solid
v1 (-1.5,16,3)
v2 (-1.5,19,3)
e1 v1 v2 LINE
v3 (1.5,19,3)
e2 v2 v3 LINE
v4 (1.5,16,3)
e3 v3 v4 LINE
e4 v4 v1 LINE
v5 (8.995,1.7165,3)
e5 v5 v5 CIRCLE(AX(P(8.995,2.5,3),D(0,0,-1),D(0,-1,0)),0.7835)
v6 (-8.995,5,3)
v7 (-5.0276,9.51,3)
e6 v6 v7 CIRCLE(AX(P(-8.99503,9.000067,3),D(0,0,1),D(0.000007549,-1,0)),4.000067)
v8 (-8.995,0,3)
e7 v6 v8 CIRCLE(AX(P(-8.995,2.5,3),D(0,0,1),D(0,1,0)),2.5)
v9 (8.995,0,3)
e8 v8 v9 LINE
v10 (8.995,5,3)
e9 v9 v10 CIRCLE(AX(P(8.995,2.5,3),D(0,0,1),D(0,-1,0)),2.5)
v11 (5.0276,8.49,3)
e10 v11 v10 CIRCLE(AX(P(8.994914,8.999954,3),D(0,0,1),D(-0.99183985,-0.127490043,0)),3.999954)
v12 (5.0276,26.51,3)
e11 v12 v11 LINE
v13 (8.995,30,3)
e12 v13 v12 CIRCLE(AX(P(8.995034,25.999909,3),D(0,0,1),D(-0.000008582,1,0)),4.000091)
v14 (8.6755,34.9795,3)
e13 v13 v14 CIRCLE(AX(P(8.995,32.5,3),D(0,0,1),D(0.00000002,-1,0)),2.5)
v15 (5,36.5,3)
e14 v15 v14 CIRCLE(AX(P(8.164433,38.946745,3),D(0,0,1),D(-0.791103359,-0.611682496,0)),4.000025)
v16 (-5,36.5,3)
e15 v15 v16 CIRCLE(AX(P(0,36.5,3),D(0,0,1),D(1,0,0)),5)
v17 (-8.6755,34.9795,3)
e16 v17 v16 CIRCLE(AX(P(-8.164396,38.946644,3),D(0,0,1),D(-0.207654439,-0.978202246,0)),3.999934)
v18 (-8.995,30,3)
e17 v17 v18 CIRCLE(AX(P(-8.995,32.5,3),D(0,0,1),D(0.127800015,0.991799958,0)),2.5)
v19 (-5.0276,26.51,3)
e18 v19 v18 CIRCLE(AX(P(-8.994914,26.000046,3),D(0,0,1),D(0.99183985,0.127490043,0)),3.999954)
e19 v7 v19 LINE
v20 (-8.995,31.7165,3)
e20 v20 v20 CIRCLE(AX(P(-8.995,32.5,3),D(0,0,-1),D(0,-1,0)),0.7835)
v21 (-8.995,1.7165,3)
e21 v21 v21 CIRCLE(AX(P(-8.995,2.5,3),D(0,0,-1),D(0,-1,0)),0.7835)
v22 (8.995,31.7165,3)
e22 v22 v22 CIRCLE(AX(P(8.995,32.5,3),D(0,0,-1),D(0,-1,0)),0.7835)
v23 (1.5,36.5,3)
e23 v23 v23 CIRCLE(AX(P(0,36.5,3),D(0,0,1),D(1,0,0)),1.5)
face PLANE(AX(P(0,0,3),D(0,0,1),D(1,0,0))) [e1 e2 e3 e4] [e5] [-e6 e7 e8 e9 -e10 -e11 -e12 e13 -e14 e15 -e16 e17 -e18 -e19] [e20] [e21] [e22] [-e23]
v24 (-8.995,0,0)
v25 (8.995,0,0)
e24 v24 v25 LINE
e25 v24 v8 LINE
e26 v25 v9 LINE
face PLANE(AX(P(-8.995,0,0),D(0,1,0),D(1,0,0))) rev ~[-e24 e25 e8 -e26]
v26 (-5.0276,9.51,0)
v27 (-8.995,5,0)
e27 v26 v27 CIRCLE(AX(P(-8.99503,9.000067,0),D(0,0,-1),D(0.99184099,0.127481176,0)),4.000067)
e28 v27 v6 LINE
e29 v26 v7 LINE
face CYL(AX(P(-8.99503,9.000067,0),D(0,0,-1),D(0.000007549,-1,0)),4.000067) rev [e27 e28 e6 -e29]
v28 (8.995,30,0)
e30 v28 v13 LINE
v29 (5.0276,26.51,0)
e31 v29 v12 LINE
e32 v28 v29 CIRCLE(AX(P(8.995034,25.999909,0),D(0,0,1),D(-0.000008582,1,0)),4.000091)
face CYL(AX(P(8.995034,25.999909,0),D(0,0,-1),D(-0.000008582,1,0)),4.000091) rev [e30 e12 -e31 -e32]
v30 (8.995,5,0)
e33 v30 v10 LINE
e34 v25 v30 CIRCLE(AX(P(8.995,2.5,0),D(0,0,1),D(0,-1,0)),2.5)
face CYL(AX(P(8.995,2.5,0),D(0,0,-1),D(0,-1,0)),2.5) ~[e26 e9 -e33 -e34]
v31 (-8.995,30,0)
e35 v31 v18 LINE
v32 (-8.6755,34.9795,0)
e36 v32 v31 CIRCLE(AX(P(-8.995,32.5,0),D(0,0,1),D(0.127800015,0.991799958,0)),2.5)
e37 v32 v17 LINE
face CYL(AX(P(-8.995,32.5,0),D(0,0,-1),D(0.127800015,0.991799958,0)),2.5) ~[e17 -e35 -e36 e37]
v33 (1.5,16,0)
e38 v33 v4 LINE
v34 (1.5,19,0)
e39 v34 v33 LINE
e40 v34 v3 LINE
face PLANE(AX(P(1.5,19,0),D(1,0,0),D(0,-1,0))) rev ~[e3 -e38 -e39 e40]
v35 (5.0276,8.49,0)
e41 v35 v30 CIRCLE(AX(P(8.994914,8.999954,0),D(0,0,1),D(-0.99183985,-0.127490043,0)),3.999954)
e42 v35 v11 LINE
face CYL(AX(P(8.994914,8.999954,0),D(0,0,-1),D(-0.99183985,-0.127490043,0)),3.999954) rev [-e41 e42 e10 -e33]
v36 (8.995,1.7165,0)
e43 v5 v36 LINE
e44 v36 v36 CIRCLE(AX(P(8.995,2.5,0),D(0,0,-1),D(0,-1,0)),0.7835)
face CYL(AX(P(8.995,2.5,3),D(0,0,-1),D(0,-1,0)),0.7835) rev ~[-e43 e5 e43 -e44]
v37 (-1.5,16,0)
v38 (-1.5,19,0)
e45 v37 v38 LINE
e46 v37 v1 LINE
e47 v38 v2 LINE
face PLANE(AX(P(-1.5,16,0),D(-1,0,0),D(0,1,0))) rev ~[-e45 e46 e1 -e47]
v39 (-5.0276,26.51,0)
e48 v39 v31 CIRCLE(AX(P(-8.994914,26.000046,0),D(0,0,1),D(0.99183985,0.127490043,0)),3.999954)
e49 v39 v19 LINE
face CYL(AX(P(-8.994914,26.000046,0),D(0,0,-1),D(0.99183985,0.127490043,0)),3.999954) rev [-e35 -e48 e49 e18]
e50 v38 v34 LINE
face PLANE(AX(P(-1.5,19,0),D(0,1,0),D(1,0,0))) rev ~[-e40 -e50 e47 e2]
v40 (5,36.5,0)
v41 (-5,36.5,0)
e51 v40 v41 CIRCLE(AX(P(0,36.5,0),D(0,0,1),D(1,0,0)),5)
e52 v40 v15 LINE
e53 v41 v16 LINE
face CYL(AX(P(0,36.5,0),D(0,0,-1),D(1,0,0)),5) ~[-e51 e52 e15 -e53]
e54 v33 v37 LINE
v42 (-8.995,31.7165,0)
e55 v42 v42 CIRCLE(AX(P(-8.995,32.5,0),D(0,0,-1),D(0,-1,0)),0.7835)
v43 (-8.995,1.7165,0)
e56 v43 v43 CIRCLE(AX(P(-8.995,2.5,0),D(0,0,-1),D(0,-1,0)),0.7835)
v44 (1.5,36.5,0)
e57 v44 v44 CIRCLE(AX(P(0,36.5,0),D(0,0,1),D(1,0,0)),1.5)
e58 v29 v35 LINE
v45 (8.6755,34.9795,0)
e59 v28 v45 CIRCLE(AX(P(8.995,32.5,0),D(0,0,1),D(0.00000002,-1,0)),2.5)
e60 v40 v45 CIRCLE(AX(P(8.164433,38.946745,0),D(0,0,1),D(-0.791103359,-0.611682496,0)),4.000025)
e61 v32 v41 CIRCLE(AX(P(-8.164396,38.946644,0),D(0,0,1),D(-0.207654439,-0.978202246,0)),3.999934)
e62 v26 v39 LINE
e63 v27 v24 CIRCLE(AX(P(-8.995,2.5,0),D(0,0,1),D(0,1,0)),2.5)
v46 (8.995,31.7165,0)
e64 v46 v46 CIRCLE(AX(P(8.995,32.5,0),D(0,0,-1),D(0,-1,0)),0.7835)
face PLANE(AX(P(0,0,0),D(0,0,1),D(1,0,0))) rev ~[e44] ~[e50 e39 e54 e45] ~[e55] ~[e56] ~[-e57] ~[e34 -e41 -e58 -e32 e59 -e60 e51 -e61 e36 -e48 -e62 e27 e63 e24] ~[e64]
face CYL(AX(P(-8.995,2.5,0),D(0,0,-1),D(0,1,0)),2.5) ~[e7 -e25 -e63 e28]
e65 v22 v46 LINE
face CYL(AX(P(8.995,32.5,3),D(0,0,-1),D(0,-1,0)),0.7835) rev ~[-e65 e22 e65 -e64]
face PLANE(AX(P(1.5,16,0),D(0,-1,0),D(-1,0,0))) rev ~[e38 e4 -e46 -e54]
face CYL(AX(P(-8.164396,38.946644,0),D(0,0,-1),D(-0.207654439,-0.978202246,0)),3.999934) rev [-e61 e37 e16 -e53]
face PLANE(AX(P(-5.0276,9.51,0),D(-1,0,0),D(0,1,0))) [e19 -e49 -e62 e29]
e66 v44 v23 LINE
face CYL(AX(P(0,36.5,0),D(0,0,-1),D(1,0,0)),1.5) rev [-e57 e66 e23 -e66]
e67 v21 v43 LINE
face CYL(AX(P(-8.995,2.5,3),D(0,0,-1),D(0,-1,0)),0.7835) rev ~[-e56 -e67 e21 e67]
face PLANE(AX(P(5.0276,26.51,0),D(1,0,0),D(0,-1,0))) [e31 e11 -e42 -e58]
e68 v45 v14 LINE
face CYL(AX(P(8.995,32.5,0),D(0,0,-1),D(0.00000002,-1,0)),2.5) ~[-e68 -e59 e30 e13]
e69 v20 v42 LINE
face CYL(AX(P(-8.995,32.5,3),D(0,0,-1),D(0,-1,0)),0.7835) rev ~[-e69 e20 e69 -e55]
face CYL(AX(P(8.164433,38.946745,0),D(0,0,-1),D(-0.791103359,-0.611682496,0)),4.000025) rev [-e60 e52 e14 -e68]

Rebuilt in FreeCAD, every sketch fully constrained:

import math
import FreeCAD as App
import Part
import Sketcher

doc = App.newDocument("Part")
body = doc.addObject("PartDesign::Body", "Body")

sketch1 = body.newObject("Sketcher::SketchObject", "Sketch")
sketch1.AttachmentSupport = (doc.getObject("XY_Plane"), [""])
sketch1.MapMode = "FlatFace"
sketch1.addGeometry([
    Part.ArcOfCircle(Part.Circle(App.Vector(-9, 2.5, 0), App.Vector(0, 0, 1), 2.5), math.radians(90), math.radians(270)),
    Part.LineSegment(App.Vector(-9, 0, 0), App.Vector(9, 0, 0)),
    Part.ArcOfCircle(Part.Circle(App.Vector(9, 2.5, 0), App.Vector(0, 0, 1), 2.5), math.radians(-90), math.radians(90)),
    Part.ArcOfCircle(Part.Circle(App.Vector(9, 9, 0), App.Vector(0, 0, 1), 4), math.radians(-173), math.radians(-90)),
    Part.LineSegment(App.Vector(5, 8.5, 0), App.Vector(5, 26.5, 0)),
    Part.ArcOfCircle(Part.Circle(App.Vector(9, 26, 0), App.Vector(0, 0, 1), 4), math.radians(90), math.radians(173)),
    Part.ArcOfCircle(Part.Circle(App.Vector(9, 32.5, 0), App.Vector(0, 0, 1), 2.5), math.radians(-90), math.radians(97)),
    Part.ArcOfCircle(Part.Circle(App.Vector(8.2, 38.9, 0), App.Vector(0, 0, 1), 4), math.radians(-142), math.radians(-83)),
    Part.ArcOfCircle(Part.Circle(App.Vector(0, 36.5, 0), App.Vector(0, 0, 1), 5), math.radians(0), math.radians(180)),
    Part.ArcOfCircle(Part.Circle(App.Vector(-8.2, 38.9, 0), App.Vector(0, 0, 1), 4), math.radians(-97), math.radians(-38)),
    Part.ArcOfCircle(Part.Circle(App.Vector(-9, 32.5, 0), App.Vector(0, 0, 1), 2.5), math.radians(83), math.radians(270)),
    Part.ArcOfCircle(Part.Circle(App.Vector(-9, 26, 0), App.Vector(0, 0, 1), 4), math.radians(7), math.radians(90)),
    Part.LineSegment(App.Vector(-5, 26.5, 0), App.Vector(-5, 9.5, 0)),
    Part.ArcOfCircle(Part.Circle(App.Vector(-9, 9, 0), App.Vector(0, 0, 1), 4), math.radians(-90), math.radians(7)),
    Part.LineSegment(App.Vector(-1.5, 16, 0), App.Vector(-1.5, 19, 0)),
    Part.LineSegment(App.Vector(-1.5, 19, 0), App.Vector(1.5, 19, 0)),
    Part.LineSegment(App.Vector(1.5, 19, 0), App.Vector(1.5, 16, 0)),
    Part.LineSegment(App.Vector(1.5, 16, 0), App.Vector(-1.5, 16, 0)),
    Part.Circle(App.Vector(0, 36.5, 0), App.Vector(0, 0, 1), 1.5),
], False)
sketch1.addConstraint([
    Sketcher.Constraint("Tangent", 0, 2, 1, 1),
    Sketcher.Constraint("Tangent", 1, 2, 2, 1),
    Sketcher.Constraint("Tangent", 2, 2, 3, 2),
    Sketcher.Constraint("Coincident", 3, 1, 4, 1),
    Sketcher.Constraint("Coincident", 4, 2, 5, 2),
    Sketcher.Constraint("Tangent", 5, 1, 6, 1),
    Sketcher.Constraint("Tangent", 6, 2, 7, 2),
    Sketcher.Constraint("Coincident", 7, 1, 8, 1),
    Sketcher.Constraint("Coincident", 8, 2, 9, 2),
    Sketcher.Constraint("Tangent", 9, 1, 10, 1),
    Sketcher.Constraint("Tangent", 10, 2, 11, 2),
    Sketcher.Constraint("Coincident", 11, 1, 12, 1),
    Sketcher.Constraint("Coincident", 12, 2, 13, 2),
    Sketcher.Constraint("Tangent", 13, 1, 0, 1),
    Sketcher.Constraint("Coincident", 14, 2, 15, 1),
    Sketcher.Constraint("Coincident", 15, 2, 16, 1),
    Sketcher.Constraint("Coincident", 16, 2, 17, 1),
    Sketcher.Constraint("Coincident", 17, 2, 14, 1),
    Sketcher.Constraint("Horizontal", 1),
    Sketcher.Constraint("Vertical", 4),
    Sketcher.Constraint("Vertical", 12),
    Sketcher.Constraint("Vertical", 14),
    Sketcher.Constraint("Horizontal", 15),
    Sketcher.Constraint("Vertical", 16),
    Sketcher.Constraint("Horizontal", 17),
    Sketcher.Constraint("Coincident", 18, 3, 8, 3),
    Sketcher.Constraint("Equal", 0, 2),
    Sketcher.Constraint("Equal", 3, 5),
    Sketcher.Constraint("Equal", 2, 6),
    Sketcher.Constraint("Equal", 5, 7),
    Sketcher.Constraint("Equal", 7, 9),
    Sketcher.Constraint("Equal", 6, 10),
    Sketcher.Constraint("Equal", 9, 11),
    Sketcher.Constraint("Equal", 11, 13),
    Sketcher.Constraint("Symmetric", 0, 2, 1, 2, -1, 1),
    Sketcher.Constraint("Symmetric", 7, 3, 9, 3, -2),
    Sketcher.Constraint("Symmetric", 5, 3, 11, 3, -2),
    Sketcher.Constraint("PointOnObject", 8, 3, -2),
    Sketcher.Constraint("Horizontal", 18, 3, 7, 1),
    Sketcher.Constraint("Horizontal", 4, 2, 11, 1),
    Sketcher.Constraint("Vertical", 2, 3, 3, 3),
    Sketcher.Constraint("Vertical", 3, 3, 5, 3),
    Sketcher.Constraint("Vertical", 5, 3, 6, 3),
    Sketcher.Constraint("Vertical", 11, 3, 13, 3),
    Sketcher.Constraint("Equal", 17, 14),
    Sketcher.Constraint("Diameter", 18, 3.0),
    Sketcher.Constraint("Radius", 3, 4.0),
    Sketcher.Constraint("Radius", 8, 5.0),
    Sketcher.Constraint("Radius", 0, 2.5),
    Sketcher.Constraint("DistanceX", 15, 1, 15, 2, 3.0),
    Sketcher.Constraint("DistanceY", -1, 1, 16, 2, 16.0),
    Sketcher.Constraint("DistanceY", 6, 3, 8, 3, 4.0),
    Sketcher.Constraint("DistanceY", 4, 1, 4, 2, 18.02),
    Sketcher.Constraint("DistanceY", -1, 1, 6, 3, 32.5),
    Sketcher.Constraint("DistanceX", 0, 3, -1, 1, 8.995),
    Sketcher.Constraint("DistanceX", 14, 2, -1, 1, 1.5),
])
pad1 = body.newObject("PartDesign::Pad", "Pad")
pad1.Profile = sketch1
pad1.Length = 3

sketch2 = body.newObject("Sketcher::SketchObject", "Sketch001")
sketch2.AttachmentSupport = (doc.getObject("XY_Plane"), [""])
sketch2.MapMode = "FlatFace"
sketch2.AttachmentOffset = App.Placement(App.Vector(0, 0, 3), App.Rotation())
sketch2.addGeometry([
    Part.Circle(App.Vector(-9, 32.5, 0), App.Vector(0, 0, 1), 0.8),
    Part.Circle(App.Vector(9, 32.5, 0), App.Vector(0, 0, 1), 0.8),
    Part.Circle(App.Vector(9, 2.5, 0), App.Vector(0, 0, 1), 0.8),
    Part.Circle(App.Vector(-9, 2.5, 0), App.Vector(0, 0, 1), 0.8),
], False)
sketch2.addConstraint([
    Sketcher.Constraint("Equal", 0, 1),
    Sketcher.Constraint("Equal", 1, 2),
    Sketcher.Constraint("Equal", 2, 3),
    Sketcher.Constraint("Symmetric", 0, 3, 1, 3, -2),
    Sketcher.Constraint("Symmetric", 2, 3, 3, 3, -2),
    Sketcher.Constraint("Vertical", 1, 3, 2, 3),
    Sketcher.Constraint("Diameter", 0, 1.567),
    Sketcher.Constraint("DistanceY", 2, 3, 1, 3, 30.0),
    Sketcher.Constraint("DistanceY", -1, 1, 0, 3, 32.5),
    Sketcher.Constraint("DistanceX", 0, 3, 1, 3, 17.99),
])
doc.recompute()
hole = body.newObject("PartDesign::Hole", "Hole")
hole.Profile = sketch2
hole.ThreadType = "None"
hole.Diameter = 1.567
hole.DepthType = "ThroughAll"

doc.recompute()
